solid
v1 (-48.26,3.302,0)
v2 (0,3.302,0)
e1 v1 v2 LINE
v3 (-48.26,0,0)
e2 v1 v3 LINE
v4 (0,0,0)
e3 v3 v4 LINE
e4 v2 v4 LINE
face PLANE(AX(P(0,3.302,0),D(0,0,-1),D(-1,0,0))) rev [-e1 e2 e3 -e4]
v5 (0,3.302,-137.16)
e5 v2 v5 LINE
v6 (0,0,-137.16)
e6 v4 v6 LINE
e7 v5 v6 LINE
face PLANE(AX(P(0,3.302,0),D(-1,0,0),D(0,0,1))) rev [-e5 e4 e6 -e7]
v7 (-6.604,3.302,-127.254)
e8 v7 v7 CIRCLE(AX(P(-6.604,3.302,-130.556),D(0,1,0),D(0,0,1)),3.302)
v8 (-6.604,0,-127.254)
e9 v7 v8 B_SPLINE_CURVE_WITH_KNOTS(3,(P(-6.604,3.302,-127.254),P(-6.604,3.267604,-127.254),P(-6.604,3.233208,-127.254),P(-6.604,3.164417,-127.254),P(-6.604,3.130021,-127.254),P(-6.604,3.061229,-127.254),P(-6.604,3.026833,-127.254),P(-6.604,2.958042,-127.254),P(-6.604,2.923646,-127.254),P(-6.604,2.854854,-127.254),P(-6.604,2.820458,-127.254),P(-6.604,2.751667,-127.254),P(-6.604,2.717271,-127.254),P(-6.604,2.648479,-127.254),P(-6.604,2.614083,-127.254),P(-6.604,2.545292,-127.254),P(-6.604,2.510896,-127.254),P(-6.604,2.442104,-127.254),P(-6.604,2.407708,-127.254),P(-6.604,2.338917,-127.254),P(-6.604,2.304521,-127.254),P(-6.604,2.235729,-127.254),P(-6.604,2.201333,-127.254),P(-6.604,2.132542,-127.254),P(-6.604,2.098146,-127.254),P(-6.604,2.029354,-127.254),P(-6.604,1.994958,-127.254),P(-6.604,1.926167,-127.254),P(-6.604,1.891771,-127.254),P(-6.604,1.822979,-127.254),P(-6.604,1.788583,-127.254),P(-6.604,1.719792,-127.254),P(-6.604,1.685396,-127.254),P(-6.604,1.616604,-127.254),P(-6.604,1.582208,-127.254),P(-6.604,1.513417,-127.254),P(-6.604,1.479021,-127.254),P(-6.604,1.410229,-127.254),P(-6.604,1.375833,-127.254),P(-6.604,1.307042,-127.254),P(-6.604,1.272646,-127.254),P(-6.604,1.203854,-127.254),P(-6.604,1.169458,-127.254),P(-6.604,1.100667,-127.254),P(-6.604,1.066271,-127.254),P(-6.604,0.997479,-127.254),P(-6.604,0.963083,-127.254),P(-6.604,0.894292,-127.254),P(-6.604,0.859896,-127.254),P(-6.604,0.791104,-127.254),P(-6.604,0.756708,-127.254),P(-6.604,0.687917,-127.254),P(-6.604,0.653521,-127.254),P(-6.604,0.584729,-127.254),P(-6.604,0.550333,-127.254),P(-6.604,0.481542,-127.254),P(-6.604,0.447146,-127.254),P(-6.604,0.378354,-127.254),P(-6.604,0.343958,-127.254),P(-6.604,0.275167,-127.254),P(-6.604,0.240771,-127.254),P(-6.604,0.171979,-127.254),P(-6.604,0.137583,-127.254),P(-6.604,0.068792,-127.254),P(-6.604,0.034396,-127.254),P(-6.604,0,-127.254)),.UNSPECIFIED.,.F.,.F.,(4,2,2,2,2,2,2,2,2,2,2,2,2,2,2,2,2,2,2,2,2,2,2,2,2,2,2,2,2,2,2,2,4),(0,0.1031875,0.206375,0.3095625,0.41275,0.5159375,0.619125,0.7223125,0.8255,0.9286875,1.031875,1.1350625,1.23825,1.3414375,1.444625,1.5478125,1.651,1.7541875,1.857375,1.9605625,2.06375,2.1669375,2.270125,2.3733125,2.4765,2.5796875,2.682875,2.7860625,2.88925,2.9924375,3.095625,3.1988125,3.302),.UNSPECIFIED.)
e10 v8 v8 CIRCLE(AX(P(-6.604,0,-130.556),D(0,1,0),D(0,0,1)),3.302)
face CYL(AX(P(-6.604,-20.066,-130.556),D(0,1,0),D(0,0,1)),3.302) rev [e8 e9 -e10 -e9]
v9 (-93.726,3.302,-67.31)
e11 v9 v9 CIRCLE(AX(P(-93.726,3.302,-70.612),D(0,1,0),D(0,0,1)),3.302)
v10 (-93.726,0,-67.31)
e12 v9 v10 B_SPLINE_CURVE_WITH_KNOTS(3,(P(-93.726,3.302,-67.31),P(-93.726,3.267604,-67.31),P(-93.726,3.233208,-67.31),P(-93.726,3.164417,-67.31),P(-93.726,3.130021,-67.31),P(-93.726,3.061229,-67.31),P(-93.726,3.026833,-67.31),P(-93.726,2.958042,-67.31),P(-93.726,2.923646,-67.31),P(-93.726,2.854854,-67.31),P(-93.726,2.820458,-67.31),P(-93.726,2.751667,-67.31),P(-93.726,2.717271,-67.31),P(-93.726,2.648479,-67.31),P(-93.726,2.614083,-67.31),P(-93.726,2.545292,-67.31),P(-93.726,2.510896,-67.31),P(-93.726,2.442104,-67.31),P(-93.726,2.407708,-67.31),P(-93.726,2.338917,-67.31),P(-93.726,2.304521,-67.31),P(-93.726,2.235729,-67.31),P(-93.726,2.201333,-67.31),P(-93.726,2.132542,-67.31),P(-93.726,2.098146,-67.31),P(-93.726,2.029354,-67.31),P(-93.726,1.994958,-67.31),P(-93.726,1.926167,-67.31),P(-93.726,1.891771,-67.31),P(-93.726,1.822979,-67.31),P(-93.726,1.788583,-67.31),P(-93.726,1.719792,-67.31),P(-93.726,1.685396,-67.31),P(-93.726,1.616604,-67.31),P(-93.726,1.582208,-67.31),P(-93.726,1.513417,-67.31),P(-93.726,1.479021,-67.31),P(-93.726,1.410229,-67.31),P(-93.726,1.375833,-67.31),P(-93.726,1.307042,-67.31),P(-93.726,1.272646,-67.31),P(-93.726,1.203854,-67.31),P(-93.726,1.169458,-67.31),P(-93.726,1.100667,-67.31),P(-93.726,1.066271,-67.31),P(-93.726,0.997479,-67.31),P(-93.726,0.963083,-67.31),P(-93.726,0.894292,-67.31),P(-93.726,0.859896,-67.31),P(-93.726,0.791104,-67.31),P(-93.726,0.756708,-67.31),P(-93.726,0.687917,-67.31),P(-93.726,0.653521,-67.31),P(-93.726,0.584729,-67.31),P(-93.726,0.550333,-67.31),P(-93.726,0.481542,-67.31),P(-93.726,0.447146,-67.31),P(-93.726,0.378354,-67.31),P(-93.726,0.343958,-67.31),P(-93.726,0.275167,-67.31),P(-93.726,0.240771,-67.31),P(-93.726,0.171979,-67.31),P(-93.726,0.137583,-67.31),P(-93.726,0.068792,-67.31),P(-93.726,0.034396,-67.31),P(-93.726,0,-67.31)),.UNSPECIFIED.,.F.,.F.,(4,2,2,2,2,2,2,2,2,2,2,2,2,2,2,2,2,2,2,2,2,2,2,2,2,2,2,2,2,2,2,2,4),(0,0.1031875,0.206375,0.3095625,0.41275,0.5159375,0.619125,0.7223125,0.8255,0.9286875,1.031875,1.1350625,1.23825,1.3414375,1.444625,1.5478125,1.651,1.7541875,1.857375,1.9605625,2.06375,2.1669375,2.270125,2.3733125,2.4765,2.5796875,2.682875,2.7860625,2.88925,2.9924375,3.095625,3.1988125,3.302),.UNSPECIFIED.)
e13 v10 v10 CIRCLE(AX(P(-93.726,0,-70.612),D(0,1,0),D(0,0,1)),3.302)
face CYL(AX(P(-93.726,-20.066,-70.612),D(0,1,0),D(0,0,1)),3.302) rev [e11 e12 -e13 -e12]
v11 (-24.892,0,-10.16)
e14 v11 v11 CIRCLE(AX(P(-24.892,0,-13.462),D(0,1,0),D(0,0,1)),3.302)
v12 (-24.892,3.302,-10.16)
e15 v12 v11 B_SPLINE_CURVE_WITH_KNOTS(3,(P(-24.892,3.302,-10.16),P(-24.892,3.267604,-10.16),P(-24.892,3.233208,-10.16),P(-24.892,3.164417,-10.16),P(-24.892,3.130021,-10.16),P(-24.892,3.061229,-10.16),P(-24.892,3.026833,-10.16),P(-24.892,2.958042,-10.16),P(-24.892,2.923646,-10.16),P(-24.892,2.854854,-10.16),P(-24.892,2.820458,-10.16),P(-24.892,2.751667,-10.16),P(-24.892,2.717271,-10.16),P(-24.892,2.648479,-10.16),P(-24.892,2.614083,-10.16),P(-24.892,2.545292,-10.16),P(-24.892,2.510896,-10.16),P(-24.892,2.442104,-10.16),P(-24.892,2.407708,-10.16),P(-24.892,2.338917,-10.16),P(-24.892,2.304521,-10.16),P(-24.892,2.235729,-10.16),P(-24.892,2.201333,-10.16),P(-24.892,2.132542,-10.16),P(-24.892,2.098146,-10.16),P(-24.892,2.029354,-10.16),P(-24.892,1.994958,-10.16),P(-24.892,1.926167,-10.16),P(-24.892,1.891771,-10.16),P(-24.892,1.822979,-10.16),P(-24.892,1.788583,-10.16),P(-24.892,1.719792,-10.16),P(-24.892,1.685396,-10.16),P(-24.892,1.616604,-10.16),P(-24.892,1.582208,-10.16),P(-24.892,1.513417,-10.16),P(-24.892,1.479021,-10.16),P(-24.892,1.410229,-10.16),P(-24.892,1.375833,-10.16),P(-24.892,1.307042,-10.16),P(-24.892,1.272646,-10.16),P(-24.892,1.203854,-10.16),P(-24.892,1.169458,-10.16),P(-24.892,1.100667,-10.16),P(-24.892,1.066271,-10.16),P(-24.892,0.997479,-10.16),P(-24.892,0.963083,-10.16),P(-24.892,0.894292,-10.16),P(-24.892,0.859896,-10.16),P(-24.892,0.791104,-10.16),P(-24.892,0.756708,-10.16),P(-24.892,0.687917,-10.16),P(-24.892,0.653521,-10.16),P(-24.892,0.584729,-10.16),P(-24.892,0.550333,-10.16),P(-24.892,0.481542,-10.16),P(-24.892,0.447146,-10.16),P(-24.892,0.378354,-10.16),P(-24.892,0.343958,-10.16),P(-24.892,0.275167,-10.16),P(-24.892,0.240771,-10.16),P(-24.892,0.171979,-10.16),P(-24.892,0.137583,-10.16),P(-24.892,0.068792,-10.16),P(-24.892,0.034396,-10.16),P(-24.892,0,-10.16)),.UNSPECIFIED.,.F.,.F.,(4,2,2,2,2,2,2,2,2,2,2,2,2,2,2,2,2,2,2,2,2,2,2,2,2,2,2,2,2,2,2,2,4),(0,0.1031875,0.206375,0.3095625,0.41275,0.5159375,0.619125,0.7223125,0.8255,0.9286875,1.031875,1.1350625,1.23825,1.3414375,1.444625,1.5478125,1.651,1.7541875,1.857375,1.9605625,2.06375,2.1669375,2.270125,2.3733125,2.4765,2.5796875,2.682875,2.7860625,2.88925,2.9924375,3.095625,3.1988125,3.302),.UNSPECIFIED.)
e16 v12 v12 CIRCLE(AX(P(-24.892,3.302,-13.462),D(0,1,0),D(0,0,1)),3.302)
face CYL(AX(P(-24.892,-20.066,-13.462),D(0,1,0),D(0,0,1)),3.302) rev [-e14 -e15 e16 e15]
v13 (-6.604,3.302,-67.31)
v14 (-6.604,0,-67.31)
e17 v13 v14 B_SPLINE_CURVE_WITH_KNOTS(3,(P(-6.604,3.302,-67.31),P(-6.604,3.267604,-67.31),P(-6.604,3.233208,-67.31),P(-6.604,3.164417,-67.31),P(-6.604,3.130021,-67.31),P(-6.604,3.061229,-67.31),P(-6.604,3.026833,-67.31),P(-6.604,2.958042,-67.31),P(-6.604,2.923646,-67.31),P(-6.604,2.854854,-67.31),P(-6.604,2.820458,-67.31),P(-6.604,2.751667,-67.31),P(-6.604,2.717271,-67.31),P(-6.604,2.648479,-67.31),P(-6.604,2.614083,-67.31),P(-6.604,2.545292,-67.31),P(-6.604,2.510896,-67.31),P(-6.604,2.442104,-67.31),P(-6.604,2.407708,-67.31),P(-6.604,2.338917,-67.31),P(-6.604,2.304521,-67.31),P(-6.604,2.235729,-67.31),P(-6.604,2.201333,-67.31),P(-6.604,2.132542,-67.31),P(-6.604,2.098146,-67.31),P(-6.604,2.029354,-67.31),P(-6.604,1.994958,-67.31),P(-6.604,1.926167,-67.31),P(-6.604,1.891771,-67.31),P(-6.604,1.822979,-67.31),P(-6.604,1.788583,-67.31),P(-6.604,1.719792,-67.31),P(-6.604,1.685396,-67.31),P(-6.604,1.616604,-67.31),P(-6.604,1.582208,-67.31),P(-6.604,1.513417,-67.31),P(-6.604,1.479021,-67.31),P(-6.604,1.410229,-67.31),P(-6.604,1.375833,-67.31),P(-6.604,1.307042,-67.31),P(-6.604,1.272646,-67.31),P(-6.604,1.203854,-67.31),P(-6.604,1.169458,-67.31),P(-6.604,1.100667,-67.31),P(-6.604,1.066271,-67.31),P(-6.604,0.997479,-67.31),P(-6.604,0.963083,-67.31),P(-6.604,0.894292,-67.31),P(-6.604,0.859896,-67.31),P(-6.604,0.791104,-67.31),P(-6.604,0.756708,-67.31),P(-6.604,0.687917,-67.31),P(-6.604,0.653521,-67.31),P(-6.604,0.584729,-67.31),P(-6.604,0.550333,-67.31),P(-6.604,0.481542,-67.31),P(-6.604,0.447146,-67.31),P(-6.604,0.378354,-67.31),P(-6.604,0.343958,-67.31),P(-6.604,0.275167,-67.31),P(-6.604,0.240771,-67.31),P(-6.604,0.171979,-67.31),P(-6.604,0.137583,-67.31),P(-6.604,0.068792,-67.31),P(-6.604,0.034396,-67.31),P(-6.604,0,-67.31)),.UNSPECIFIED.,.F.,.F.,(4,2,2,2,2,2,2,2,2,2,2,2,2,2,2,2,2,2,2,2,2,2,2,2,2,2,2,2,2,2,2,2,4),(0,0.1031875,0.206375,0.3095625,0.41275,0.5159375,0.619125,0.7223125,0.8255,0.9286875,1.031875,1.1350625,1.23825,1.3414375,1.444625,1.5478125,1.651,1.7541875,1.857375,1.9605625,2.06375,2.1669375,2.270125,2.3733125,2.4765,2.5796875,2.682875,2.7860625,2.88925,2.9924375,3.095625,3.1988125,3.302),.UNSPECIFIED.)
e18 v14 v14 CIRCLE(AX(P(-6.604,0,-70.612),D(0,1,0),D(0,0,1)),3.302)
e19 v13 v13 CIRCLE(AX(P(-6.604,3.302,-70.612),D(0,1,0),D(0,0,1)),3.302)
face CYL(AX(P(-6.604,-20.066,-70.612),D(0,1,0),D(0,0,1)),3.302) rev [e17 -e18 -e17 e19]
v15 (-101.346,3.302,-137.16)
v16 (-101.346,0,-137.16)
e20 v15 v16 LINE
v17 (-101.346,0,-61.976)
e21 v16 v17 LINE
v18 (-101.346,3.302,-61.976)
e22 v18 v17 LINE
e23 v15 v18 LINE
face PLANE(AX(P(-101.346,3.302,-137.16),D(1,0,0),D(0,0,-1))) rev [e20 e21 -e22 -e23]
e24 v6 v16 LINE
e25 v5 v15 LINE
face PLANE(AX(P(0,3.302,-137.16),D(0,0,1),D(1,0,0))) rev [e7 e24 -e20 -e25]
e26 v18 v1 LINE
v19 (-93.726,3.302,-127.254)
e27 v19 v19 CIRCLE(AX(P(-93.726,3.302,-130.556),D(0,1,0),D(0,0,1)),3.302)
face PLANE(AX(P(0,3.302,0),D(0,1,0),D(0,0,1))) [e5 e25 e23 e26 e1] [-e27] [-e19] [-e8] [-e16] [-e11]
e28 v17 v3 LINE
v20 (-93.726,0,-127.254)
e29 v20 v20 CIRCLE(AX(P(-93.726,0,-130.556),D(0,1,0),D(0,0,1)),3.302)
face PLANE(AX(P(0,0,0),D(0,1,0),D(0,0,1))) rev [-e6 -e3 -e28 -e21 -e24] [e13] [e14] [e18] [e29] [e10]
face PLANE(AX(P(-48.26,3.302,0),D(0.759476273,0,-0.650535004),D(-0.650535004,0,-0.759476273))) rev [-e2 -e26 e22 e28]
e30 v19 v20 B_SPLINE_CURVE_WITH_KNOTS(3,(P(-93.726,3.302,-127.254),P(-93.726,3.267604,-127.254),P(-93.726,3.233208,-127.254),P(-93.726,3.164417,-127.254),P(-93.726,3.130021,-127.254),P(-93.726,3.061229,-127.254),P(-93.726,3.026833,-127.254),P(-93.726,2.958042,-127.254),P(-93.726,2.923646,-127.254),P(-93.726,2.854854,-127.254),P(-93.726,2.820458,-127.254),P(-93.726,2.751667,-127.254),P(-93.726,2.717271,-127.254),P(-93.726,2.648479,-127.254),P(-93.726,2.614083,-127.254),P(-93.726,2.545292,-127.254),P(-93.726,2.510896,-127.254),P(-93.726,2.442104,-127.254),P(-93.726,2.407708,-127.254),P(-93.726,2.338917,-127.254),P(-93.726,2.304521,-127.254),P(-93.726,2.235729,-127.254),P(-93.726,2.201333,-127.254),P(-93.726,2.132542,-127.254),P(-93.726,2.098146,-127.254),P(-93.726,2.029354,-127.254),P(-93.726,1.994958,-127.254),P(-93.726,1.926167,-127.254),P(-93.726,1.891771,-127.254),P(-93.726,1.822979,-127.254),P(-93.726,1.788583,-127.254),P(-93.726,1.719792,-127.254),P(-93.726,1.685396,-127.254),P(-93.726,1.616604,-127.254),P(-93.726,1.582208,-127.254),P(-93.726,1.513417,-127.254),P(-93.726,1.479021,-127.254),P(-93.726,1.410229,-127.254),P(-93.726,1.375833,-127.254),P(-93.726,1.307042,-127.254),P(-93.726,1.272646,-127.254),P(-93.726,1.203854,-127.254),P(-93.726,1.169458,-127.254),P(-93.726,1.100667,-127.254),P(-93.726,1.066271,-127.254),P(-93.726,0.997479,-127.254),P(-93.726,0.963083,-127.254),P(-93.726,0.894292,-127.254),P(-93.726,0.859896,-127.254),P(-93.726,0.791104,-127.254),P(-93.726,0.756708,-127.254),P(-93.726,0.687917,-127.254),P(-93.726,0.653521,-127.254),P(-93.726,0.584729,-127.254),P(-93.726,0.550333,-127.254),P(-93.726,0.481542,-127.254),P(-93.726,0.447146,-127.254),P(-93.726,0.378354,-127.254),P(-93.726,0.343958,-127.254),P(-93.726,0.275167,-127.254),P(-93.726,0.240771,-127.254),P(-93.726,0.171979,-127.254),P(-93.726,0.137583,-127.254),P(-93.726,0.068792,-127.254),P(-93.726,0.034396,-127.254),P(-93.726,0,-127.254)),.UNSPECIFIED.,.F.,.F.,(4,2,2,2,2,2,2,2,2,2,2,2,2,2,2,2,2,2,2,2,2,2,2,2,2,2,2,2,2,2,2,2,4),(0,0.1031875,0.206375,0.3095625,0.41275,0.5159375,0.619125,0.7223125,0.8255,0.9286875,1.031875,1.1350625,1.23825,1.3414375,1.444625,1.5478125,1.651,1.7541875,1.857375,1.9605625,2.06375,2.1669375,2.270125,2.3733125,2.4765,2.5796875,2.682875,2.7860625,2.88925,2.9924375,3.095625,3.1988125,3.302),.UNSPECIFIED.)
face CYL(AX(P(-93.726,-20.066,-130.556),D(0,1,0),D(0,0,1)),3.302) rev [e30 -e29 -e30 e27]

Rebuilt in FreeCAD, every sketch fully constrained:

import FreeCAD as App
import Part
import Sketcher

V = App.Vector
Q = App.Units.Quantity


def add_polygon(sketch, points):
    """Adds a closed chain of lines whose ends are joined by coincident constraints."""
    first, n = sketch.GeometryCount, len(points)
    for a, b in zip(points, points[1:] + points[:1]):
        sketch.addGeometry(Part.LineSegment(App.Vector(*a, 0), App.Vector(*b, 0)), False)
    for i in range(n):
        sketch.addConstraint(Sketcher.Constraint("Coincident", first + i, 2, first + (i + 1) % n, 1))

doc = App.newDocument("Part")
body = doc.addObject("PartDesign::Body", "Body")

sketch1 = body.newObject("Sketcher::SketchObject", "Sketch")
sketch1.AttachmentSupport = (doc.getObject("XZ_Plane"), [""])
sketch1.MapMode = "FlatFace"
add_polygon(sketch1, [(-48.26, 0), (0, 0), (0, -137.16), (-101.346, -137.16), (-101.346, -61.976)])
sketch1.addConstraint([
    Sketcher.Constraint("Horizontal", 0),
    Sketcher.Constraint("Vertical", 1),
    Sketcher.Constraint("Horizontal", 2),
    Sketcher.Constraint("Vertical", 3),
    Sketcher.Constraint("Coincident", 0, 2, -1, 1),
    Sketcher.Constraint("DistanceX", 0, 1, 0, 2, Q("1.9 in")),
    Sketcher.Constraint("DistanceY", 1, 2, 1, 1, Q("5.4 in")),
    Sketcher.Constraint("DistanceX", 2, 2, 2, 1, Q("3.99 in")),
    Sketcher.Constraint("DistanceY", 3, 1, 3, 2, Q("2.96 in")),
])
pad1 = body.newObject("PartDesign::Pad", "Pad")
pad1.Profile = sketch1
pad1.Length = Q("0.13 in")
pad1.Reversed = True

sketch2 = body.newObject("Sketcher::SketchObject", "Sketch001")
sketch2.AttachmentSupport = (doc.getObject("XZ_Plane"), [""])
sketch2.MapMode = "FlatFace"
sketch2.AttachmentOffset = App.Placement(V(0, 0, -0.13 * 25.4), App.Rotation())
sketch2.addGeometry([
    Part.Circle(V(-93.726, -70.612, 0), V(0, 0, 1), 3.302),
    Part.Circle(V(-24.892, -13.462, 0), V(0, 0, 1), 3.302),
    Part.Circle(V(-6.604, -70.612, 0), V(0, 0, 1), 3.302),
    Part.Circle(V(-6.604, -130.556, 0), V(0, 0, 1), 3.302),
    Part.Circle(V(-93.726, -130.556, 0), V(0, 0, 1), 3.302),
], False)
sketch2.addConstraint([
    Sketcher.Constraint("Equal", 0, 1),
    Sketcher.Constraint("Equal", 1, 2),
    Sketcher.Constraint("Equal", 2, 3),
    Sketcher.Constraint("Equal", 3, 4),
    Sketcher.Constraint("Horizontal", 0, 3, 2, 3),
    Sketcher.Constraint("Horizontal", 3, 3, 4, 3),
    Sketcher.Constraint("Vertical", 2, 3, 3, 3),
    Sketcher.Constraint("Vertical", 0, 3, 4, 3),
    Sketcher.Constraint("Diameter", 0, Q("0.26 in")),
    Sketcher.Constraint("DistanceX", 0, 3, -1, 1, Q("3.69 in")),
    Sketcher.Constraint("DistanceY", 0, 3, -1, 1, Q("2.78 in")),
    Sketcher.Constraint("DistanceX", 1, 3, -1, 1, Q("0.98 in")),
    Sketcher.Constraint("DistanceY", 1, 3, -1, 1, Q("0.53 in")),
    Sketcher.Constraint("DistanceX", 2, 3, -1, 1, Q("0.26 in")),
    Sketcher.Constraint("DistanceY", 3, 3, -1, 1, Q("5.14 in")),
])
pocket1 = body.newObject("PartDesign::Pocket", "Pocket")
pocket1.Profile = sketch2
pocket1.Length = Q("0.92 in")
pocket1.Reversed = True

doc.recompute()
